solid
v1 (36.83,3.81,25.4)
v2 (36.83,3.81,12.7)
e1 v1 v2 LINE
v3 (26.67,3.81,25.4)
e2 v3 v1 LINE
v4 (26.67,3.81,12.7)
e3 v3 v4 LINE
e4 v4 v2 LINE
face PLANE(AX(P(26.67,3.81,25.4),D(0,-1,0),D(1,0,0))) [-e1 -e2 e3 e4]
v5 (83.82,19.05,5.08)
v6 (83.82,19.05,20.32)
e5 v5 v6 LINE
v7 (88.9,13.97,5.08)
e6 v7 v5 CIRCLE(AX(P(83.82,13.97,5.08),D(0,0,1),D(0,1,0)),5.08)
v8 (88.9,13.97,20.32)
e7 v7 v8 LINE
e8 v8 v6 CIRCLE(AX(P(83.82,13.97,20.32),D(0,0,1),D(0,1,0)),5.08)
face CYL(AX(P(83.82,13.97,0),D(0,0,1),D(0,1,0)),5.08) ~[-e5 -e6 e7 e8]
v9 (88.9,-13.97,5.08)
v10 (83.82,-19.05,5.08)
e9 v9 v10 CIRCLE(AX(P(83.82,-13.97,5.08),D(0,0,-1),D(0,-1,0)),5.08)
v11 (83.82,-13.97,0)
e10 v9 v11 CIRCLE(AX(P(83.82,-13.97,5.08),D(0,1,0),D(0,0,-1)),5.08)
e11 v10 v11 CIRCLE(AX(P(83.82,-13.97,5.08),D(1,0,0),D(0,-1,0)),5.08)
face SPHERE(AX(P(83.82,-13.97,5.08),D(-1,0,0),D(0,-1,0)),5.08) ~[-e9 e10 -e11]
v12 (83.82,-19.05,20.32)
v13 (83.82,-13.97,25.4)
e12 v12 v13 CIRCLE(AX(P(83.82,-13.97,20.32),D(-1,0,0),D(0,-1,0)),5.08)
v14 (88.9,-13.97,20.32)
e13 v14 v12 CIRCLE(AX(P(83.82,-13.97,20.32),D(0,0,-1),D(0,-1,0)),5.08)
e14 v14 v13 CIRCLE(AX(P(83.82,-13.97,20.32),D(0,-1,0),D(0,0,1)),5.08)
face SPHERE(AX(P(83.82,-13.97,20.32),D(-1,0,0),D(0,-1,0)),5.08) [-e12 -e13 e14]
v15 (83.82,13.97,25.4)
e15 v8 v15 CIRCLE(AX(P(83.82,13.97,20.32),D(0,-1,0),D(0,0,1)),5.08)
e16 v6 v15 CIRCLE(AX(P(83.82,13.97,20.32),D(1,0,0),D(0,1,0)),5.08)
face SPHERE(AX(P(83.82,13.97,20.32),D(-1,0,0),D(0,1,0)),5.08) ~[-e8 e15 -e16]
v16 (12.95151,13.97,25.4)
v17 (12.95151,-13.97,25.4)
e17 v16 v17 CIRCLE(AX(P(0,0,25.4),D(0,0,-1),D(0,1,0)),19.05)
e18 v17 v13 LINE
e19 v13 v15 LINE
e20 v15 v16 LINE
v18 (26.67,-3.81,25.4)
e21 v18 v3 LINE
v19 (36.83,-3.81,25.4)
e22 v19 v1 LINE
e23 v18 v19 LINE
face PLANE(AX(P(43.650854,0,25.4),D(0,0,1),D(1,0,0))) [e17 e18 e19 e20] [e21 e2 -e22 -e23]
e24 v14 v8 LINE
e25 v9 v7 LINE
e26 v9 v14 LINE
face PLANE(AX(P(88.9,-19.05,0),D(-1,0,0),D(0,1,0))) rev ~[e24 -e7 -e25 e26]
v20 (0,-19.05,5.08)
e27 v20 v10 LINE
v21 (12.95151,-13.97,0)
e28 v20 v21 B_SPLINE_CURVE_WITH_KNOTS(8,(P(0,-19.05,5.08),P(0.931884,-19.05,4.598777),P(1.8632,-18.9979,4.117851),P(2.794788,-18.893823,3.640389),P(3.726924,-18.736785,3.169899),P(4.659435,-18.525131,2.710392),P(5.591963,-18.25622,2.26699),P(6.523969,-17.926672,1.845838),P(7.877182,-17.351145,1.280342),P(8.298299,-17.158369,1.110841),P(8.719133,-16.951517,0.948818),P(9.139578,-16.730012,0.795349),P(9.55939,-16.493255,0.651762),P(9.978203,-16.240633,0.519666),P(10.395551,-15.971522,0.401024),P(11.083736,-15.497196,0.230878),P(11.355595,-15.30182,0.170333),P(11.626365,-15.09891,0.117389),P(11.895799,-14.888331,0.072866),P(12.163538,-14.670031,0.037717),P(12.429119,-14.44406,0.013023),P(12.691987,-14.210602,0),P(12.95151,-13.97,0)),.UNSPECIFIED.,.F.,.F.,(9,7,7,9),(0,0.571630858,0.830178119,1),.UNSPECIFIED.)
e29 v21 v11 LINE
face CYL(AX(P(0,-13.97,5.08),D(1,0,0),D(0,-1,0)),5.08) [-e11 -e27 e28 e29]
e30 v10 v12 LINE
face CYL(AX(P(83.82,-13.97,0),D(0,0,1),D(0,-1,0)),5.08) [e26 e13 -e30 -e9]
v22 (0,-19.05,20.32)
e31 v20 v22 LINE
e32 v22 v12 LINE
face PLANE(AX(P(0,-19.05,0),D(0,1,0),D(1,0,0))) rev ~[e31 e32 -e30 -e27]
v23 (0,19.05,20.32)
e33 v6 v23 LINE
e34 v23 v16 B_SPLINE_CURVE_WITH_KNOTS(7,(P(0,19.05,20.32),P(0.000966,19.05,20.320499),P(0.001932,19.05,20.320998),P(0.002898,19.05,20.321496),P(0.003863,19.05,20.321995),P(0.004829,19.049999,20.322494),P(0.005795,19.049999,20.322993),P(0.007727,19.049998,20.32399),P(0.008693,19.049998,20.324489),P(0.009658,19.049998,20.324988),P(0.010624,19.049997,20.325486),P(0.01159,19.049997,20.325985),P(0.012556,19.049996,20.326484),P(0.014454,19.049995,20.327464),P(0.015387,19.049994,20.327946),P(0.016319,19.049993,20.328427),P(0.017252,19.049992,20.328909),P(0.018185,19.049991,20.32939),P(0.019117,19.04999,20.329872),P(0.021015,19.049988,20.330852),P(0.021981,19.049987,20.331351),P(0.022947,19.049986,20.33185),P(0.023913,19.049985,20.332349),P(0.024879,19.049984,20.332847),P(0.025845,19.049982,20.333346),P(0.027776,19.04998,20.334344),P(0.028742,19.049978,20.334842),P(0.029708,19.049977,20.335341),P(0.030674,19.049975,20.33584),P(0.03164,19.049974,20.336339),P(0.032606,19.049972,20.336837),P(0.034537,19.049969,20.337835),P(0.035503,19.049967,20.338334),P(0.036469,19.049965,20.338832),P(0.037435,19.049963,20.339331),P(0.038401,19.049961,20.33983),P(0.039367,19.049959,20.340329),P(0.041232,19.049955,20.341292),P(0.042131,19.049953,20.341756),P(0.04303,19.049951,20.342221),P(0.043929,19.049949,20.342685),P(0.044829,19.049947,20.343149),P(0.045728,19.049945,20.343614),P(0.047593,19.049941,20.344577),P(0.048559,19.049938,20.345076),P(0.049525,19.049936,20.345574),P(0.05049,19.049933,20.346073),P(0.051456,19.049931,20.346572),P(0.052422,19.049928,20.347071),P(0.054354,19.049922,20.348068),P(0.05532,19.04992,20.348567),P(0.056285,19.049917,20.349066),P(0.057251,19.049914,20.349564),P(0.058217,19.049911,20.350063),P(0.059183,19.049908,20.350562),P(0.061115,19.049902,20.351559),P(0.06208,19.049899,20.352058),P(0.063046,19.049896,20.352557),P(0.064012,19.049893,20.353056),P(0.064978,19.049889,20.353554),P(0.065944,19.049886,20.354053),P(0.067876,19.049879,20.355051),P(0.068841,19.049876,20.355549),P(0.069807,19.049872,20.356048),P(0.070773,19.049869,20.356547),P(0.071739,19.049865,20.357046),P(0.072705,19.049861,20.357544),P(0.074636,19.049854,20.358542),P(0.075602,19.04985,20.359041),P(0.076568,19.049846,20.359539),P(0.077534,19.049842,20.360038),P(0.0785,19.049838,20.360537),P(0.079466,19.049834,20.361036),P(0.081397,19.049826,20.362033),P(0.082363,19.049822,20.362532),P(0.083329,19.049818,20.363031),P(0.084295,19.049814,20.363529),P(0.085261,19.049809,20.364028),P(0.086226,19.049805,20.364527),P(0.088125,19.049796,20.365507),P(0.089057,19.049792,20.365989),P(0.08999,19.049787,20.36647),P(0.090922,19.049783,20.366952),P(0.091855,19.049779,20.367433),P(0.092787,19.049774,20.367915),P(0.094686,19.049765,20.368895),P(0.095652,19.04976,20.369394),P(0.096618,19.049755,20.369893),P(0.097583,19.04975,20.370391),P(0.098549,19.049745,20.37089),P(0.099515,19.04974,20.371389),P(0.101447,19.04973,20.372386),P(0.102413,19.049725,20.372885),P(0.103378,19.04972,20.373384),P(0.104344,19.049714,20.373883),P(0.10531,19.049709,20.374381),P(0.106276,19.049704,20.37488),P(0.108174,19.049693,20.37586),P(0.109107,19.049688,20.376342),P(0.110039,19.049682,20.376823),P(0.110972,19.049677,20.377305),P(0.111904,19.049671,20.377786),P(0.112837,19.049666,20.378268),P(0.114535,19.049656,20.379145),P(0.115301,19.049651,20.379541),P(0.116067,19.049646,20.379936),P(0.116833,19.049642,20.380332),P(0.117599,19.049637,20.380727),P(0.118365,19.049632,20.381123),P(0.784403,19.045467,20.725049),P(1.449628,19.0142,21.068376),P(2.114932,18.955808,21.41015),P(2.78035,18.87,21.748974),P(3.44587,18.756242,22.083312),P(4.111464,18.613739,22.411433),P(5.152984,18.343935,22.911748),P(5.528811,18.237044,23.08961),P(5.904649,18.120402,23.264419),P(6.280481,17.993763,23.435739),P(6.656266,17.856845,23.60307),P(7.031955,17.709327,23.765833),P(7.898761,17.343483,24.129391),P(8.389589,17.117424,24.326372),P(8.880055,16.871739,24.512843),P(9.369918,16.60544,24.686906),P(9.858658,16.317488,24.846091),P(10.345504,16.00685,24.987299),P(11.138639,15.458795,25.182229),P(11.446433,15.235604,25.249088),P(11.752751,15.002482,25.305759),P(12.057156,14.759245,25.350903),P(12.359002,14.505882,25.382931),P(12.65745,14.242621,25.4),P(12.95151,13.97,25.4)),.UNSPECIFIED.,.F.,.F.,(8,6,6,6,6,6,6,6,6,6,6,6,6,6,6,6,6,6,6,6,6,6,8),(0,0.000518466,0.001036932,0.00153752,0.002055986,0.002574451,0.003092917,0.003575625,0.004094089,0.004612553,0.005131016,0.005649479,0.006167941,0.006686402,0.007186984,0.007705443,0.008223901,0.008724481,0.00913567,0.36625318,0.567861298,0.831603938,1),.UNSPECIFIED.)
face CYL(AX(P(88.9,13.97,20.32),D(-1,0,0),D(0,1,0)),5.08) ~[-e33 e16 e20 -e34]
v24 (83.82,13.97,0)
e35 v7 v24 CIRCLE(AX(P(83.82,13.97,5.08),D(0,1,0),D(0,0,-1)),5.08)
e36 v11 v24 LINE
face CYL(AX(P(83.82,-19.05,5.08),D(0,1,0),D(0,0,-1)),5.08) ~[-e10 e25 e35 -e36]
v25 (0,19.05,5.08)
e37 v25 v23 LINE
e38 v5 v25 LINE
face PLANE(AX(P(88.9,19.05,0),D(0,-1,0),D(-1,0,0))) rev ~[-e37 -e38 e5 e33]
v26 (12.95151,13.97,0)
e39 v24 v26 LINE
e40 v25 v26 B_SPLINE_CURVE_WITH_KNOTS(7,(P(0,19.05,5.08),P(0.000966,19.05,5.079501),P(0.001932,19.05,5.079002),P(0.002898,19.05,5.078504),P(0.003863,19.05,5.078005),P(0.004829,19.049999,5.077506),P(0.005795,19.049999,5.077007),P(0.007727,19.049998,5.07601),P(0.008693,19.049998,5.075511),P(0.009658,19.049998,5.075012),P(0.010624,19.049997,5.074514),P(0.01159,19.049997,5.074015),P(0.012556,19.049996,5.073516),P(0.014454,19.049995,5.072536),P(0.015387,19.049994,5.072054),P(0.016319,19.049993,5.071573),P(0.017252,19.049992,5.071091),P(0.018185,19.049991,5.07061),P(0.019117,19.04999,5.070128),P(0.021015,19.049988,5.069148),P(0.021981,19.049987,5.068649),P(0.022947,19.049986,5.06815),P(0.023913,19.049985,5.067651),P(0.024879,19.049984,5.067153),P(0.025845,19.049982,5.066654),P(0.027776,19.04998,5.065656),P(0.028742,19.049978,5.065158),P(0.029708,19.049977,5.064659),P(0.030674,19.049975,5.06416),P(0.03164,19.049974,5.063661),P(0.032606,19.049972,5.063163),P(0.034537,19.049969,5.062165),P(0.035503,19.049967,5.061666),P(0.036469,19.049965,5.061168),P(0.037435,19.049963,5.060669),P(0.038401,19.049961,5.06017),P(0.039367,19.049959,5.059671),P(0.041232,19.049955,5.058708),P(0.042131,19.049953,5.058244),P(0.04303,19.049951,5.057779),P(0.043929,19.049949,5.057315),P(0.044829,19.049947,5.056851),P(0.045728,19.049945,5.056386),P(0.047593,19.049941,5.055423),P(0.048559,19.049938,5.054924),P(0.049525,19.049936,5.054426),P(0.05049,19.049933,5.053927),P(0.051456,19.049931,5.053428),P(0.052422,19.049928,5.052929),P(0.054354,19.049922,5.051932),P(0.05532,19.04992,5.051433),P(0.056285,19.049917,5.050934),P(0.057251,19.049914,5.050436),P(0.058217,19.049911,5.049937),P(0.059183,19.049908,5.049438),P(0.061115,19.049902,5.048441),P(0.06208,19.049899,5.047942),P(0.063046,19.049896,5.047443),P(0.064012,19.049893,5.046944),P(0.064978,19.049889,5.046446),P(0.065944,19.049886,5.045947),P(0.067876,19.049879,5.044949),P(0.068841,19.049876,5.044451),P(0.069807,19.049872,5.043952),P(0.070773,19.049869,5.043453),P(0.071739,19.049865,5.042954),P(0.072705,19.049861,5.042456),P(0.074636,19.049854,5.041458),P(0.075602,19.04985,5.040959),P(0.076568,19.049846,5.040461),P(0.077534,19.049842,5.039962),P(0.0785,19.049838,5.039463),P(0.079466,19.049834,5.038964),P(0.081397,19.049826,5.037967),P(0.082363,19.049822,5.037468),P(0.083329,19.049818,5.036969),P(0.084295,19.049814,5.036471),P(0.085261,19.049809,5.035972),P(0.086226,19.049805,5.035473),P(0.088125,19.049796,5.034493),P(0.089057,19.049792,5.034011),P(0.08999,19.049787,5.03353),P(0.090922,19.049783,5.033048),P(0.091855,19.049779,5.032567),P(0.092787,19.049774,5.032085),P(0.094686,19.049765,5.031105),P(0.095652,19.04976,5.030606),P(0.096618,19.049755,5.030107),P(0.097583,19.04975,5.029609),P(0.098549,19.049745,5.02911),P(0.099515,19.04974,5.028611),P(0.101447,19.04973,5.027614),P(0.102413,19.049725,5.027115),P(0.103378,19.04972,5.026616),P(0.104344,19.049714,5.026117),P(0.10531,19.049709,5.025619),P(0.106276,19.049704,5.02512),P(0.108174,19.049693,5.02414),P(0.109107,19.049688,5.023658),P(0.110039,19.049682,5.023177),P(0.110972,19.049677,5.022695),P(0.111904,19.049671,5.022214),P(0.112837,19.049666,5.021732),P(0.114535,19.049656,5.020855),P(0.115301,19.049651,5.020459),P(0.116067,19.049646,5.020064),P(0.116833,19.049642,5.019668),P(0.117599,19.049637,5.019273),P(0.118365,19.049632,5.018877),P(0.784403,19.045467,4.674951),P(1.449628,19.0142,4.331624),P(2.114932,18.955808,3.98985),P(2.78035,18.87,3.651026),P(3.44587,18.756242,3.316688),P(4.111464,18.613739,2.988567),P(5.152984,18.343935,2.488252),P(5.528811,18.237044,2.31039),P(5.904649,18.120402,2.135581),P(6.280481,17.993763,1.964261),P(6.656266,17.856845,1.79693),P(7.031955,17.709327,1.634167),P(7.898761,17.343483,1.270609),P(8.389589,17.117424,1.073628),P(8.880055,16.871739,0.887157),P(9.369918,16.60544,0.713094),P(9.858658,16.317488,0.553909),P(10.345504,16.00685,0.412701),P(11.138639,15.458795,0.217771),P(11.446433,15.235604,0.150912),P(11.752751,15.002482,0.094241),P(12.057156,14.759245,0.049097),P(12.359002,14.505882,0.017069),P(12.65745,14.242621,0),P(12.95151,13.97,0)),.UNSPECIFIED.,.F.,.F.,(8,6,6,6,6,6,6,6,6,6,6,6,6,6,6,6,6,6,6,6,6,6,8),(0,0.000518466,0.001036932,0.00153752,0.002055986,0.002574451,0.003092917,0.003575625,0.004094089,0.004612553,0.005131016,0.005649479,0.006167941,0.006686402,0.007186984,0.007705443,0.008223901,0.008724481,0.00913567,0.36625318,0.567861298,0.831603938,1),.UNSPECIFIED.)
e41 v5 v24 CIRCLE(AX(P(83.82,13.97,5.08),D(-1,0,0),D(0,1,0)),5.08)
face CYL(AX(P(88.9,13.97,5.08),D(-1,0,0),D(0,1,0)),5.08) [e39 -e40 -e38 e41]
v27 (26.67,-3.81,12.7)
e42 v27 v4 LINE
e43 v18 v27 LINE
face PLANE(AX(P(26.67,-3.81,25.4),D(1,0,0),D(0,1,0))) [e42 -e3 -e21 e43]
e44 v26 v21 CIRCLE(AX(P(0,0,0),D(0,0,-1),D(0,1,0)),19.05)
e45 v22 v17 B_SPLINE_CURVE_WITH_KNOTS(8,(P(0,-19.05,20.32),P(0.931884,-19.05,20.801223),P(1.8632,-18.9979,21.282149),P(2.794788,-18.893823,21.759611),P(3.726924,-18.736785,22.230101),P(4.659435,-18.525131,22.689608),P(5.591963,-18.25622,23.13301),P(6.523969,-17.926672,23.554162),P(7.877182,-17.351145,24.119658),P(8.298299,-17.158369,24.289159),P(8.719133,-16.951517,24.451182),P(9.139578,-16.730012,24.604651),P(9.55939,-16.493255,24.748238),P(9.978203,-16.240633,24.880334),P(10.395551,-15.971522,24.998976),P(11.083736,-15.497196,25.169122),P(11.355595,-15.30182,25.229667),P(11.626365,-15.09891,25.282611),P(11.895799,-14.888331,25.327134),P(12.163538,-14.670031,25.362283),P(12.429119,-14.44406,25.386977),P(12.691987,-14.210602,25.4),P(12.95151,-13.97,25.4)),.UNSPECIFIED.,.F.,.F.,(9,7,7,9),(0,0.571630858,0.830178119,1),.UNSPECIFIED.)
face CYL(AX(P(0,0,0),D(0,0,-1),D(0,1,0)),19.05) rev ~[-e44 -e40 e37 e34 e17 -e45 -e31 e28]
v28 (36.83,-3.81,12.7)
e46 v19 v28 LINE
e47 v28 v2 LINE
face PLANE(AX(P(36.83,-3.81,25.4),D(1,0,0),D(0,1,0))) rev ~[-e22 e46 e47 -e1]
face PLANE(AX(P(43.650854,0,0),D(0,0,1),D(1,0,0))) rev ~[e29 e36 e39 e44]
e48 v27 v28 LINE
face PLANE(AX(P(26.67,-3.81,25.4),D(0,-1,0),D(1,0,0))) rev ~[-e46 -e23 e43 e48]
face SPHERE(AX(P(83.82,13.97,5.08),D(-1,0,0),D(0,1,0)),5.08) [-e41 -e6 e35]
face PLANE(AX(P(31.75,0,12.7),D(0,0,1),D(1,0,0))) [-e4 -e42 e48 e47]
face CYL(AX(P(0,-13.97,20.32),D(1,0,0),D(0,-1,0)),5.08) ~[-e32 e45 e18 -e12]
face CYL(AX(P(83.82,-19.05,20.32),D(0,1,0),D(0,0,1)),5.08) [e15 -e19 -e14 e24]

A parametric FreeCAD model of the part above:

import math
import FreeCAD as App
import Part
import Sketcher
from FreeCAD import Vector
Q = App.Units.Quantity


def edges_at(feature, points):
    """Names of the edges that pass closest to the given points."""
    edges = feature.Shape.Edges
    near = lambda p: min(range(len(edges)), key=lambda i: edges[i].distToShape(Part.Vertex(*p))[0])
    return sorted({f"Edge{near(p) + 1}" for p in points})


def add_polygon(sketch, points):
    """Adds a closed chain of lines whose ends are joined by coincident constraints."""
    first, n = sketch.GeometryCount, len(points)
    for a, b in zip(points, points[1:] + points[:1]):
        sketch.addGeometry(Part.LineSegment(App.Vector(*a, 0), App.Vector(*b, 0)), False)
    for i in range(n):
        sketch.addConstraint(Sketcher.Constraint("Coincident", first + i, 2, first + (i + 1) % n, 1))

doc = App.newDocument("Part")
params = doc.addObject("Spreadsheet::Sheet", "Params")
for row, (alias, value) in enumerate([
    ("sketch1_radius", "0.75 in"),
    ("sketch1_width", "3.5 in"),
    ("pad1_length", "1 in"),
    ("sketch2_width", "0.4 in"),
    ("sketch2_height", "0.3 in"),
    ("pocket1_length", "0.5 in"),
    ("fillet_radius", "0.2 in"),
], start=1):
    params.set(f"A{row}", alias)
    params.set(f"B{row}", "=" + value)
    params.setAlias(f"B{row}", alias)

body = doc.addObject("PartDesign::Body", "Body")

# Sketch on XY plane
sketch1 = body.newObject("Sketcher::SketchObject", "Sketch")
sketch1.AttachmentSupport = (doc.getObject("XY_Plane"), [""])
sketch1.MapMode = "FlatFace"
sketch1.addGeometry(Part.ArcOfCircle(Part.Circle(Vector(0, 0, 0), Vector(0, 0, 1), 19), math.radians(-90), math.radians(90)), False)
sketch1.addGeometry(Part.LineSegment(Vector(0, -19, 0), Vector(89, -19, 0)), False)
sketch1.addGeometry(Part.LineSegment(Vector(89, -19, 0), Vector(89, 19, 0)), False)
sketch1.addGeometry(Part.LineSegment(Vector(89, 19, 0), Vector(0, 19, 0)), False)
sketch1.addConstraint(Sketcher.Constraint("Tangent", 0, 1, 1, 1))
sketch1.addConstraint(Sketcher.Constraint("Coincident", 1, 2, 2, 1))
sketch1.addConstraint(Sketcher.Constraint("Coincident", 2, 2, 3, 1))
sketch1.addConstraint(Sketcher.Constraint("Tangent", 3, 2, 0, 2))
sketch1.addConstraint(Sketcher.Constraint("Horizontal", 1))
sketch1.addConstraint(Sketcher.Constraint("Vertical", 2))
sketch1.addConstraint(Sketcher.Constraint("Horizontal", 3))
sketch1.addConstraint(Sketcher.Constraint("Coincident", 0, 3, -1, 1))
sketch1.addConstraint(Sketcher.Constraint("Radius", 0, Q("0.75 in")))
sketch1.addConstraint(Sketcher.Constraint("DistanceX", 1, 1, 1, 2, Q("3.5 in")))
sketch1.setExpression("Constraints[8]", "Params.sketch1_radius")
sketch1.setExpression("Constraints[9]", "Params.sketch1_width")
pad1 = body.newObject("PartDesign::Pad", "Pad")
pad1.Profile = sketch1
pad1.setExpression("Length", "Params.pad1_length")

# Sketch on XY plane
sketch2 = body.newObject("Sketcher::SketchObject", "Sketch001")
sketch2.AttachmentSupport = (doc.getObject("XY_Plane"), [""])
sketch2.MapMode = "FlatFace"
sketch2.AttachmentOffset = App.Placement(Vector(0, 0, 1 * 25.4), App.Rotation())
add_polygon(sketch2, [(27, 4), (27, -4), (37, -4), (37, 4)])  # lines 0-3
sketch2.addConstraint(Sketcher.Constraint("Vertical", 0))
sketch2.addConstraint(Sketcher.Constraint("Horizontal", 1))
sketch2.addConstraint(Sketcher.Constraint("Vertical", 2))
sketch2.addConstraint(Sketcher.Constraint("Horizontal", 3))
sketch2.addConstraint(Sketcher.Constraint("DistanceX", 1, 1, 1, 2, Q("0.4 in")))
sketch2.addConstraint(Sketcher.Constraint("DistanceY", 0, 2, 0, 1, Q("0.3 in")))
sketch2.addConstraint(Sketcher.Constraint("DistanceX", -1, 1, 0, 2, Q("1.05 in")))
sketch2.addConstraint(Sketcher.Constraint("DistanceY", 0, 2, -1, 1, Q("0.15 in")))
sketch2.setExpression("Constraints[8]", "Params.sketch2_width")
sketch2.setExpression("Constraints[9]", "Params.sketch2_height")
pocket1 = body.newObject("PartDesign::Pocket", "Pocket")
pocket1.Profile = sketch2
pocket1.setExpression("Length", "Params.pocket1_length")
doc.recompute()

fillet = body.newObject("PartDesign::Fillet", "Fillet")
fillet.Base = (pocket1, edges_at(pocket1, [
    (44.45, -19.05, 25.4),
    (44.45, 19.05, 25.4),
    (44.45, 19.05, 0),
    (44.45, -19.05, 0),
    (88.9, -19.05, 12.7),
    (88.9, 19.05, 12.7),
    (88.9, 0, 0),
    (88.9, 0, 25.4),
]))
fillet.setExpression("Radius", "Params.fillet_radius")

doc.recompute()
